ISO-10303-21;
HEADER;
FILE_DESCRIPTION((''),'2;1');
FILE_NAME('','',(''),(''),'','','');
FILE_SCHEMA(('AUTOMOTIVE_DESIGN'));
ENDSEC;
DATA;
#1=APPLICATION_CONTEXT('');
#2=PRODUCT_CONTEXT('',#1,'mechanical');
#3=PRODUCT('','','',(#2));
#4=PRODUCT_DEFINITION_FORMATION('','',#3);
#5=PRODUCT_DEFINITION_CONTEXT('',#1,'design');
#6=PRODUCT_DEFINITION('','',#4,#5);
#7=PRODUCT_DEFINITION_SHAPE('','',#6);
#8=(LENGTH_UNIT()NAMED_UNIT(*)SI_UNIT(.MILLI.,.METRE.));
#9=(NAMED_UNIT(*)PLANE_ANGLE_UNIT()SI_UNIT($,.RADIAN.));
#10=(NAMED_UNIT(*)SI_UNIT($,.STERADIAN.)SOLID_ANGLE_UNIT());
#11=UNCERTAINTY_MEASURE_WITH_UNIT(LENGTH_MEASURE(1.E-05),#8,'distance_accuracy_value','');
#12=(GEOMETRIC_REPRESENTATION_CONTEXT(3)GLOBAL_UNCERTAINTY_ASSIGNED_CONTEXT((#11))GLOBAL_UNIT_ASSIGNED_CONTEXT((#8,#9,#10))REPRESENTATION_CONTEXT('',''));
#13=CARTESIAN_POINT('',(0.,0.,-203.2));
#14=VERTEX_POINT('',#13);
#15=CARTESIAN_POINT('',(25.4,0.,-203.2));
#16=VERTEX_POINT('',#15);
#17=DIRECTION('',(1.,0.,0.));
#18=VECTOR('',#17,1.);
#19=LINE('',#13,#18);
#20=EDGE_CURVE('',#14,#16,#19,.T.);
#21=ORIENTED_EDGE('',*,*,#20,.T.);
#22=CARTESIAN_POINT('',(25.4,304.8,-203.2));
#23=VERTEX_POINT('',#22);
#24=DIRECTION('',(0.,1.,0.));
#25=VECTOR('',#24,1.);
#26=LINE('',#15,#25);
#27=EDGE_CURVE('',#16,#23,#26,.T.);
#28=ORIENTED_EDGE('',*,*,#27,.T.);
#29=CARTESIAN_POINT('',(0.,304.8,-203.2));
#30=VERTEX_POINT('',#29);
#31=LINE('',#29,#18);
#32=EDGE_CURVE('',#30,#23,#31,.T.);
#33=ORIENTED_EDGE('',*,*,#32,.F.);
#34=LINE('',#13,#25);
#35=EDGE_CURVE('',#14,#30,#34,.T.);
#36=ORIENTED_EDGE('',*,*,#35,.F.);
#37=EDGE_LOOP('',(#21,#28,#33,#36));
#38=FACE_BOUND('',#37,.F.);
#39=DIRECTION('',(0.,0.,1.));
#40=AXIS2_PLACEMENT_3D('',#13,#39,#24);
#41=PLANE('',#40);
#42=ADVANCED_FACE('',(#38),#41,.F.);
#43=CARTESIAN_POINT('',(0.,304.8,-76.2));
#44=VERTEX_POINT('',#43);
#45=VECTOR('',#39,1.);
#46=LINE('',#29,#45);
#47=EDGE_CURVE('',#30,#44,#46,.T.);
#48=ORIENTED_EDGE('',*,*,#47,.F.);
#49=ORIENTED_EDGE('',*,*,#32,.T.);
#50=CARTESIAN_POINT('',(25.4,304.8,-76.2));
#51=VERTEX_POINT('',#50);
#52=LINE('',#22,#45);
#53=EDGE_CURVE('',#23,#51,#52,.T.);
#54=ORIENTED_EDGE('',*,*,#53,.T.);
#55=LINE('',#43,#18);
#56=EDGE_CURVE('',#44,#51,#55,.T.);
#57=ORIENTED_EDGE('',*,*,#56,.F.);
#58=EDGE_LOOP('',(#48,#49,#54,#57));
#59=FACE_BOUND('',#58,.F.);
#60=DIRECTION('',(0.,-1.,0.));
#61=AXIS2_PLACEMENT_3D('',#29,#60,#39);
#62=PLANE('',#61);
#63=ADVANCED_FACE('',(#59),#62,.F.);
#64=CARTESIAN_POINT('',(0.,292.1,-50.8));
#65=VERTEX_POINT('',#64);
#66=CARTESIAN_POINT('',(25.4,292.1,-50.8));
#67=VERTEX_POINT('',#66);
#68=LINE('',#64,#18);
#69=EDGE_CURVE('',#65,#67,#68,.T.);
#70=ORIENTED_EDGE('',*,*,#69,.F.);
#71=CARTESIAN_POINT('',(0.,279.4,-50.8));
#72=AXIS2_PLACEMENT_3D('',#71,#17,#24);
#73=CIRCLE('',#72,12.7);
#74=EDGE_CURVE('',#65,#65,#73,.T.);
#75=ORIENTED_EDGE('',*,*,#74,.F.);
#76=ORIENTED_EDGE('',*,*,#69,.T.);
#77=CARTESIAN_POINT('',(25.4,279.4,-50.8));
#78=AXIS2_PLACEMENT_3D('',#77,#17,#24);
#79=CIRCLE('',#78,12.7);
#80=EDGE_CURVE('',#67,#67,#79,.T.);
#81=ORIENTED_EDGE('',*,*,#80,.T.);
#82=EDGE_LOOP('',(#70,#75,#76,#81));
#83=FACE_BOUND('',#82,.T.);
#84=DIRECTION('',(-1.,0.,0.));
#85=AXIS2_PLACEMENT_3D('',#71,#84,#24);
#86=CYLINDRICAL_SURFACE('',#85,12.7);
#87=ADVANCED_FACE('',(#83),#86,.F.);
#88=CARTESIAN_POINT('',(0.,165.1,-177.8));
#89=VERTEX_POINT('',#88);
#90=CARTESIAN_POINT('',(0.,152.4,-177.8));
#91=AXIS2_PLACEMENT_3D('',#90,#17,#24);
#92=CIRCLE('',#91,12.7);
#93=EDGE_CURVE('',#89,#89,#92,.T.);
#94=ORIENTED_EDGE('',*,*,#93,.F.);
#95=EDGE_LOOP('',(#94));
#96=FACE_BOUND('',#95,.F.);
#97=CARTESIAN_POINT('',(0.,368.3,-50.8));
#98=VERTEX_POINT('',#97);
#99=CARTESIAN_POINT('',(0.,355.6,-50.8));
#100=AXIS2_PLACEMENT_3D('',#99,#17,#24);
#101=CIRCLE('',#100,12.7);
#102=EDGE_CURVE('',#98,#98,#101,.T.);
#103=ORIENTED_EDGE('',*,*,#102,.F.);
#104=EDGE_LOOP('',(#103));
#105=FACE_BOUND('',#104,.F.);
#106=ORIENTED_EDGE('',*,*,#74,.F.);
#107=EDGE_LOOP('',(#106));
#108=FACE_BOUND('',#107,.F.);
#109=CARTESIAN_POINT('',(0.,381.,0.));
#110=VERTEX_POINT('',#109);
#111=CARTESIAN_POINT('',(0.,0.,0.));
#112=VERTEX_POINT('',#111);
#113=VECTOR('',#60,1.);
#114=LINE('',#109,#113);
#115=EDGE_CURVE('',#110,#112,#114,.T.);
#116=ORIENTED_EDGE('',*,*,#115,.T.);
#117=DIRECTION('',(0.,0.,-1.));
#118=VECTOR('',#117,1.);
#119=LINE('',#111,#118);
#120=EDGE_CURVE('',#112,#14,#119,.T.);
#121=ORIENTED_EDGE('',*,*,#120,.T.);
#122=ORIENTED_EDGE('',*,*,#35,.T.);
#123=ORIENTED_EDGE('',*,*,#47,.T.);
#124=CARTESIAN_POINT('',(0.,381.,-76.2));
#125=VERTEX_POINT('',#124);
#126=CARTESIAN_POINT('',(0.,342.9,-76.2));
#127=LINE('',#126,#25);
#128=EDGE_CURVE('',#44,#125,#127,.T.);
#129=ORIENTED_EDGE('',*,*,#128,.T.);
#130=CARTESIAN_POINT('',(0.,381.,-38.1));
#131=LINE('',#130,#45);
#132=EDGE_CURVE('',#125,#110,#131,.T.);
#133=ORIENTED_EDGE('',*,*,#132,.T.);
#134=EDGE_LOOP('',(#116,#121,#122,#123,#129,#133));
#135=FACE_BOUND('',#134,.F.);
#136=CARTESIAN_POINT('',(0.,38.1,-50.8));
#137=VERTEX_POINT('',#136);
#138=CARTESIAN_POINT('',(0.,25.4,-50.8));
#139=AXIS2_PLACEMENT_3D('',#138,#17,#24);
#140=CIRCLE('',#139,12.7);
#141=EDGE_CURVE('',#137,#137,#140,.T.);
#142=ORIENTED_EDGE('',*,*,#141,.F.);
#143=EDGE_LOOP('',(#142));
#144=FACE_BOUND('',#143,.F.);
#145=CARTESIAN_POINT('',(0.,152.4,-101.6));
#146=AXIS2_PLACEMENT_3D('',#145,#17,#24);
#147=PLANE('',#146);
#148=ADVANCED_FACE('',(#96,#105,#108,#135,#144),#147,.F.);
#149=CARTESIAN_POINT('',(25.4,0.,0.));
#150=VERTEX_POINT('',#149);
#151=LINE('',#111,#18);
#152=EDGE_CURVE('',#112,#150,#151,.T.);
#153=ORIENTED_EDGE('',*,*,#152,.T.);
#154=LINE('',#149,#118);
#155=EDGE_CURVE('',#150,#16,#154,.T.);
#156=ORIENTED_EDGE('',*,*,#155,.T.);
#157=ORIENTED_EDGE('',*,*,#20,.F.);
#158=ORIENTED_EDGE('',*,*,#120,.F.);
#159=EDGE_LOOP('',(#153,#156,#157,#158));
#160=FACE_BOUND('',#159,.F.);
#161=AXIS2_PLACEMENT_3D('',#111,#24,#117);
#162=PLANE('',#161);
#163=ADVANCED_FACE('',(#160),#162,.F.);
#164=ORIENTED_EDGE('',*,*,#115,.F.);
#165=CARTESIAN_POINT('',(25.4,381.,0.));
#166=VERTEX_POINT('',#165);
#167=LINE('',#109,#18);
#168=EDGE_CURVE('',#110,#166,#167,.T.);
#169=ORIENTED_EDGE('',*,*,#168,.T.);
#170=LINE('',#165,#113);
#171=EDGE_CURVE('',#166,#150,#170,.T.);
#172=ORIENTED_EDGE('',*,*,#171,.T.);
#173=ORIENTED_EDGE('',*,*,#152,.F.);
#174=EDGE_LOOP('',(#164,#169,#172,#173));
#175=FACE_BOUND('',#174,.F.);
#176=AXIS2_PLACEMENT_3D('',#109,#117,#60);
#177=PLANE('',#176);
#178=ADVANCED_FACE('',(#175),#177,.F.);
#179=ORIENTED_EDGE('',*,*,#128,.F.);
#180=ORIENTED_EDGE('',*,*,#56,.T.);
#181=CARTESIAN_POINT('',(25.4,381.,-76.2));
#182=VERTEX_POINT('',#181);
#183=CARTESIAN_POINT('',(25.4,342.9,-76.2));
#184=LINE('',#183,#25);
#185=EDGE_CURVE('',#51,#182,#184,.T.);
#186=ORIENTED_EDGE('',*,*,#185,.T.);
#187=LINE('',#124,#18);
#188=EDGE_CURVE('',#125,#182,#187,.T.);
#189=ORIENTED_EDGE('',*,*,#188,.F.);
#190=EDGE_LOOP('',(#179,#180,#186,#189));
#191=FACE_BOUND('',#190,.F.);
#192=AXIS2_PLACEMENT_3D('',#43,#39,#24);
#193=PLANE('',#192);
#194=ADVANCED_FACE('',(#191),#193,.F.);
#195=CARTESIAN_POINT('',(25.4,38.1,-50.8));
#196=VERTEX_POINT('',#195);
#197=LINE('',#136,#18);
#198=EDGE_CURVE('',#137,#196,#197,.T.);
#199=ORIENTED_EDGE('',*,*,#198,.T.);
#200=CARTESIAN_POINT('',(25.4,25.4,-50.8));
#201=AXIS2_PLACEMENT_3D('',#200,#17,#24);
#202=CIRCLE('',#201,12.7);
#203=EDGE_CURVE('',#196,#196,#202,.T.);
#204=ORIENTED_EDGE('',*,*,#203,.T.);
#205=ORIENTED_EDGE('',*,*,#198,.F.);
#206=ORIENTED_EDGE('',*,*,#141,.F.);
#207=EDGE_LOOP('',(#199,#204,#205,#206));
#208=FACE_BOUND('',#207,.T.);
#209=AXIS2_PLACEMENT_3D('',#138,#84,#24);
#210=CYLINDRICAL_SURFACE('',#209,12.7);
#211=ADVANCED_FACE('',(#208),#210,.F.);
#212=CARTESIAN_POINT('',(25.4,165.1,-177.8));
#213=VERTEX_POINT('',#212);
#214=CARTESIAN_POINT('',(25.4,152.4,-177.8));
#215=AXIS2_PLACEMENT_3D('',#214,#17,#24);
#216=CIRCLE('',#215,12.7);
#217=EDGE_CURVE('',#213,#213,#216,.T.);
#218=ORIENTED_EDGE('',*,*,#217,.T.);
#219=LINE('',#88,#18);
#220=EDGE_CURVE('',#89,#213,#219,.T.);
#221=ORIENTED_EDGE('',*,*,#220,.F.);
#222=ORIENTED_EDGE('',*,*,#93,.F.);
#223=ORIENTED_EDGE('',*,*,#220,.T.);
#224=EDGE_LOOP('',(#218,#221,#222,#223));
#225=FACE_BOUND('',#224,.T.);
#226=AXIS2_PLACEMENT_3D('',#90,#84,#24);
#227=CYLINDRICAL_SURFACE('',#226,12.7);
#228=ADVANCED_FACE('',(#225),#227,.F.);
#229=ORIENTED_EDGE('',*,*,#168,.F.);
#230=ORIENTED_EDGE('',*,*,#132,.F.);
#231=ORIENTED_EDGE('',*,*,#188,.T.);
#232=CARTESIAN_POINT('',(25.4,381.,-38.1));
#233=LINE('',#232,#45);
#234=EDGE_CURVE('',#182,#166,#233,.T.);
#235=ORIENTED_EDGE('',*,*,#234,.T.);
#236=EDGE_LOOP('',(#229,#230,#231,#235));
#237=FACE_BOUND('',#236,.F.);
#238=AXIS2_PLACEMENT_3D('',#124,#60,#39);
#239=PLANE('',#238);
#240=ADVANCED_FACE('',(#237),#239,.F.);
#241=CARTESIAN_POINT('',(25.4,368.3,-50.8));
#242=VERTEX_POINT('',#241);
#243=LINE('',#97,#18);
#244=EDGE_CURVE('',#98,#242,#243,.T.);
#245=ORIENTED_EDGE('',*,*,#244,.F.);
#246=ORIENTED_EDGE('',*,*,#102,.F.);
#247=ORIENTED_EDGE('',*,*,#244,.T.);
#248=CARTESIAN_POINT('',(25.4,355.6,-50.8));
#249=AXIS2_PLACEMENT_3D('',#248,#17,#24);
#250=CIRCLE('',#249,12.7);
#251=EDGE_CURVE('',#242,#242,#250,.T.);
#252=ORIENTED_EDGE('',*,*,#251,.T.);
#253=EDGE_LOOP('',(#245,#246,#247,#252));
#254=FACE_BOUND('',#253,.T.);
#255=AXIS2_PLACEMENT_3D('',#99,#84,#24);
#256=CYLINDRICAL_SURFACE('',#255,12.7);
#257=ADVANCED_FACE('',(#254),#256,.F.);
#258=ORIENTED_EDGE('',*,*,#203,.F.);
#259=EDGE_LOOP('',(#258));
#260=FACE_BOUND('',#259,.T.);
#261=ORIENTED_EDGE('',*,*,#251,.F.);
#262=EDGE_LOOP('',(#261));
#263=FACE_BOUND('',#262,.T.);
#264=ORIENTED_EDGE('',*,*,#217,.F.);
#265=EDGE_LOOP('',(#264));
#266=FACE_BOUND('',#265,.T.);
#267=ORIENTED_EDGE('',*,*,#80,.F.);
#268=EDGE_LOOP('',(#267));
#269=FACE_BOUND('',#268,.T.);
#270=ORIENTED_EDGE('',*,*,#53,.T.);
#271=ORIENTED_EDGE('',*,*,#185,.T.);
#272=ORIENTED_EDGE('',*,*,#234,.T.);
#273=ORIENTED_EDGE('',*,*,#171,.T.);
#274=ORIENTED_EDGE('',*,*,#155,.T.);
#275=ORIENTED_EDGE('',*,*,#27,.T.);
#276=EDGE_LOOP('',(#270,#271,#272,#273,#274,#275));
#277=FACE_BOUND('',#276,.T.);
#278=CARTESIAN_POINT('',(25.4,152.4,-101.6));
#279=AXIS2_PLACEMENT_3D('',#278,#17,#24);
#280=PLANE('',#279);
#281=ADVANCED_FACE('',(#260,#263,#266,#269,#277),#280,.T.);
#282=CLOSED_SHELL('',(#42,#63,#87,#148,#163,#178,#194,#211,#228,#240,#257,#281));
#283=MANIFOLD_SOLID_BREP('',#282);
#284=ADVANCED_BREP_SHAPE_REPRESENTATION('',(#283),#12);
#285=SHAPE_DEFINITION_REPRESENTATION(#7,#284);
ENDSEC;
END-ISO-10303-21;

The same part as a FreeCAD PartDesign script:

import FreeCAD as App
import Part
import Sketcher
from FreeCAD import Vector
Q = App.Units.Quantity

doc = App.newDocument("Part")
body = doc.addObject("PartDesign::Body", "Body")

# Sketch on YZ plane
sketch1 = body.newObject("Sketcher::SketchObject", "Sketch")
sketch1.AttachmentSupport = (doc.getObject("YZ_Plane"), [""])
sketch1.MapMode = "FlatFace"
sketch1.addGeometry(Part.LineSegment(Vector(0, 0, 0), Vector(0, -203, 0)), False)
sketch1.addGeometry(Part.LineSegment(Vector(0, -203, 0), Vector(305, -203, 0)), False)
sketch1.addGeometry(Part.LineSegment(Vector(305, -203, 0), Vector(305, -76, 0)), False)
sketch1.addGeometry(Part.LineSegment(Vector(305, -76, 0), Vector(381, -76, 0)), False)
sketch1.addGeometry(Part.LineSegment(Vector(381, -76, 0), Vector(381, 0, 0)), False)
sketch1.addGeometry(Part.LineSegment(Vector(381, 0, 0), Vector(0, 0, 0)), False)
sketch1.addGeometry(Part.Circle(Vector(152, -178, 0), Vector(0, 0, 1), 13), False)
sketch1.addGeometry(Part.Circle(Vector(25, -51, 0), Vector(0, 0, 1), 13), False)
sketch1.addGeometry(Part.Circle(Vector(279, -51, 0), Vector(0, 0, 1), 13), False)
sketch1.addGeometry(Part.Circle(Vector(356, -51, 0), Vector(0, 0, 1), 13), False)
sketch1.addConstraint(Sketcher.Constraint("Coincident", 0, 2, 1, 1))
sketch1.addConstraint(Sketcher.Constraint("Coincident", 1, 2, 2, 1))
sketch1.addConstraint(Sketcher.Constraint("Coincident", 2, 2, 3, 1))
sketch1.addConstraint(Sketcher.Constraint("Coincident", 3, 2, 4, 1))
sketch1.addConstraint(Sketcher.Constraint("Coincident", 4, 2, 5, 1))
sketch1.addConstraint(Sketcher.Constraint("Coincident", 5, 2, 0, 1))
sketch1.addConstraint(Sketcher.Constraint("Vertical", 0))
sketch1.addConstraint(Sketcher.Constraint("Horizontal", 1))
sketch1.addConstraint(Sketcher.Constraint("Vertical", 2))
sketch1.addConstraint(Sketcher.Constraint("Horizontal", 3))
sketch1.addConstraint(Sketcher.Constraint("Vertical", 4))
sketch1.addConstraint(Sketcher.Constraint("Horizontal", 5))
sketch1.addConstraint(Sketcher.Constraint("Coincident", 5, 2, -1, 1))
sketch1.addConstraint(Sketcher.Constraint("Equal", 6, 7))
sketch1.addConstraint(Sketcher.Constraint("Equal", 7, 8))
sketch1.addConstraint(Sketcher.Constraint("Equal", 8, 9))
sketch1.addConstraint(Sketcher.Constraint("Horizontal", 7, 3, 8, 3))
sketch1.addConstraint(Sketcher.Constraint("Horizontal", 8, 3, 9, 3))
sketch1.addConstraint(Sketcher.Constraint("Equal", 3, 4))
sketch1.addConstraint(Sketcher.Constraint("Diameter", 6, Q("1 in")))
sketch1.addConstraint(Sketcher.Constraint("DistanceX", 1, 1, 1, 2, Q("12 in")))
sketch1.addConstraint(Sketcher.Constraint("DistanceX", 3, 1, 3, 2, Q("3 in")))
sketch1.addConstraint(Sketcher.Constraint("DistanceY", 0, 2, 0, 1, Q("8 in")))
sketch1.addConstraint(Sketcher.Constraint("DistanceX", -1, 1, 6, 3, Q("6 in")))
sketch1.addConstraint(Sketcher.Constraint("DistanceY", 6, 3, -1, 1, Q("7 in")))
sketch1.addConstraint(Sketcher.Constraint("DistanceX", -1, 1, 7, 3, Q("1 in")))
sketch1.addConstraint(Sketcher.Constraint("DistanceY", 7, 3, -1, 1, Q("2 in")))
sketch1.addConstraint(Sketcher.Constraint("DistanceX", -1, 1, 8, 3, Q("11 in")))
sketch1.addConstraint(Sketcher.Constraint("DistanceX", -1, 1, 9, 3, Q("14 in")))
pad1 = body.newObject("PartDesign::Pad", "Pad")
pad1.Profile = sketch1
pad1.Length = Q("1 in")

doc.recompute()
